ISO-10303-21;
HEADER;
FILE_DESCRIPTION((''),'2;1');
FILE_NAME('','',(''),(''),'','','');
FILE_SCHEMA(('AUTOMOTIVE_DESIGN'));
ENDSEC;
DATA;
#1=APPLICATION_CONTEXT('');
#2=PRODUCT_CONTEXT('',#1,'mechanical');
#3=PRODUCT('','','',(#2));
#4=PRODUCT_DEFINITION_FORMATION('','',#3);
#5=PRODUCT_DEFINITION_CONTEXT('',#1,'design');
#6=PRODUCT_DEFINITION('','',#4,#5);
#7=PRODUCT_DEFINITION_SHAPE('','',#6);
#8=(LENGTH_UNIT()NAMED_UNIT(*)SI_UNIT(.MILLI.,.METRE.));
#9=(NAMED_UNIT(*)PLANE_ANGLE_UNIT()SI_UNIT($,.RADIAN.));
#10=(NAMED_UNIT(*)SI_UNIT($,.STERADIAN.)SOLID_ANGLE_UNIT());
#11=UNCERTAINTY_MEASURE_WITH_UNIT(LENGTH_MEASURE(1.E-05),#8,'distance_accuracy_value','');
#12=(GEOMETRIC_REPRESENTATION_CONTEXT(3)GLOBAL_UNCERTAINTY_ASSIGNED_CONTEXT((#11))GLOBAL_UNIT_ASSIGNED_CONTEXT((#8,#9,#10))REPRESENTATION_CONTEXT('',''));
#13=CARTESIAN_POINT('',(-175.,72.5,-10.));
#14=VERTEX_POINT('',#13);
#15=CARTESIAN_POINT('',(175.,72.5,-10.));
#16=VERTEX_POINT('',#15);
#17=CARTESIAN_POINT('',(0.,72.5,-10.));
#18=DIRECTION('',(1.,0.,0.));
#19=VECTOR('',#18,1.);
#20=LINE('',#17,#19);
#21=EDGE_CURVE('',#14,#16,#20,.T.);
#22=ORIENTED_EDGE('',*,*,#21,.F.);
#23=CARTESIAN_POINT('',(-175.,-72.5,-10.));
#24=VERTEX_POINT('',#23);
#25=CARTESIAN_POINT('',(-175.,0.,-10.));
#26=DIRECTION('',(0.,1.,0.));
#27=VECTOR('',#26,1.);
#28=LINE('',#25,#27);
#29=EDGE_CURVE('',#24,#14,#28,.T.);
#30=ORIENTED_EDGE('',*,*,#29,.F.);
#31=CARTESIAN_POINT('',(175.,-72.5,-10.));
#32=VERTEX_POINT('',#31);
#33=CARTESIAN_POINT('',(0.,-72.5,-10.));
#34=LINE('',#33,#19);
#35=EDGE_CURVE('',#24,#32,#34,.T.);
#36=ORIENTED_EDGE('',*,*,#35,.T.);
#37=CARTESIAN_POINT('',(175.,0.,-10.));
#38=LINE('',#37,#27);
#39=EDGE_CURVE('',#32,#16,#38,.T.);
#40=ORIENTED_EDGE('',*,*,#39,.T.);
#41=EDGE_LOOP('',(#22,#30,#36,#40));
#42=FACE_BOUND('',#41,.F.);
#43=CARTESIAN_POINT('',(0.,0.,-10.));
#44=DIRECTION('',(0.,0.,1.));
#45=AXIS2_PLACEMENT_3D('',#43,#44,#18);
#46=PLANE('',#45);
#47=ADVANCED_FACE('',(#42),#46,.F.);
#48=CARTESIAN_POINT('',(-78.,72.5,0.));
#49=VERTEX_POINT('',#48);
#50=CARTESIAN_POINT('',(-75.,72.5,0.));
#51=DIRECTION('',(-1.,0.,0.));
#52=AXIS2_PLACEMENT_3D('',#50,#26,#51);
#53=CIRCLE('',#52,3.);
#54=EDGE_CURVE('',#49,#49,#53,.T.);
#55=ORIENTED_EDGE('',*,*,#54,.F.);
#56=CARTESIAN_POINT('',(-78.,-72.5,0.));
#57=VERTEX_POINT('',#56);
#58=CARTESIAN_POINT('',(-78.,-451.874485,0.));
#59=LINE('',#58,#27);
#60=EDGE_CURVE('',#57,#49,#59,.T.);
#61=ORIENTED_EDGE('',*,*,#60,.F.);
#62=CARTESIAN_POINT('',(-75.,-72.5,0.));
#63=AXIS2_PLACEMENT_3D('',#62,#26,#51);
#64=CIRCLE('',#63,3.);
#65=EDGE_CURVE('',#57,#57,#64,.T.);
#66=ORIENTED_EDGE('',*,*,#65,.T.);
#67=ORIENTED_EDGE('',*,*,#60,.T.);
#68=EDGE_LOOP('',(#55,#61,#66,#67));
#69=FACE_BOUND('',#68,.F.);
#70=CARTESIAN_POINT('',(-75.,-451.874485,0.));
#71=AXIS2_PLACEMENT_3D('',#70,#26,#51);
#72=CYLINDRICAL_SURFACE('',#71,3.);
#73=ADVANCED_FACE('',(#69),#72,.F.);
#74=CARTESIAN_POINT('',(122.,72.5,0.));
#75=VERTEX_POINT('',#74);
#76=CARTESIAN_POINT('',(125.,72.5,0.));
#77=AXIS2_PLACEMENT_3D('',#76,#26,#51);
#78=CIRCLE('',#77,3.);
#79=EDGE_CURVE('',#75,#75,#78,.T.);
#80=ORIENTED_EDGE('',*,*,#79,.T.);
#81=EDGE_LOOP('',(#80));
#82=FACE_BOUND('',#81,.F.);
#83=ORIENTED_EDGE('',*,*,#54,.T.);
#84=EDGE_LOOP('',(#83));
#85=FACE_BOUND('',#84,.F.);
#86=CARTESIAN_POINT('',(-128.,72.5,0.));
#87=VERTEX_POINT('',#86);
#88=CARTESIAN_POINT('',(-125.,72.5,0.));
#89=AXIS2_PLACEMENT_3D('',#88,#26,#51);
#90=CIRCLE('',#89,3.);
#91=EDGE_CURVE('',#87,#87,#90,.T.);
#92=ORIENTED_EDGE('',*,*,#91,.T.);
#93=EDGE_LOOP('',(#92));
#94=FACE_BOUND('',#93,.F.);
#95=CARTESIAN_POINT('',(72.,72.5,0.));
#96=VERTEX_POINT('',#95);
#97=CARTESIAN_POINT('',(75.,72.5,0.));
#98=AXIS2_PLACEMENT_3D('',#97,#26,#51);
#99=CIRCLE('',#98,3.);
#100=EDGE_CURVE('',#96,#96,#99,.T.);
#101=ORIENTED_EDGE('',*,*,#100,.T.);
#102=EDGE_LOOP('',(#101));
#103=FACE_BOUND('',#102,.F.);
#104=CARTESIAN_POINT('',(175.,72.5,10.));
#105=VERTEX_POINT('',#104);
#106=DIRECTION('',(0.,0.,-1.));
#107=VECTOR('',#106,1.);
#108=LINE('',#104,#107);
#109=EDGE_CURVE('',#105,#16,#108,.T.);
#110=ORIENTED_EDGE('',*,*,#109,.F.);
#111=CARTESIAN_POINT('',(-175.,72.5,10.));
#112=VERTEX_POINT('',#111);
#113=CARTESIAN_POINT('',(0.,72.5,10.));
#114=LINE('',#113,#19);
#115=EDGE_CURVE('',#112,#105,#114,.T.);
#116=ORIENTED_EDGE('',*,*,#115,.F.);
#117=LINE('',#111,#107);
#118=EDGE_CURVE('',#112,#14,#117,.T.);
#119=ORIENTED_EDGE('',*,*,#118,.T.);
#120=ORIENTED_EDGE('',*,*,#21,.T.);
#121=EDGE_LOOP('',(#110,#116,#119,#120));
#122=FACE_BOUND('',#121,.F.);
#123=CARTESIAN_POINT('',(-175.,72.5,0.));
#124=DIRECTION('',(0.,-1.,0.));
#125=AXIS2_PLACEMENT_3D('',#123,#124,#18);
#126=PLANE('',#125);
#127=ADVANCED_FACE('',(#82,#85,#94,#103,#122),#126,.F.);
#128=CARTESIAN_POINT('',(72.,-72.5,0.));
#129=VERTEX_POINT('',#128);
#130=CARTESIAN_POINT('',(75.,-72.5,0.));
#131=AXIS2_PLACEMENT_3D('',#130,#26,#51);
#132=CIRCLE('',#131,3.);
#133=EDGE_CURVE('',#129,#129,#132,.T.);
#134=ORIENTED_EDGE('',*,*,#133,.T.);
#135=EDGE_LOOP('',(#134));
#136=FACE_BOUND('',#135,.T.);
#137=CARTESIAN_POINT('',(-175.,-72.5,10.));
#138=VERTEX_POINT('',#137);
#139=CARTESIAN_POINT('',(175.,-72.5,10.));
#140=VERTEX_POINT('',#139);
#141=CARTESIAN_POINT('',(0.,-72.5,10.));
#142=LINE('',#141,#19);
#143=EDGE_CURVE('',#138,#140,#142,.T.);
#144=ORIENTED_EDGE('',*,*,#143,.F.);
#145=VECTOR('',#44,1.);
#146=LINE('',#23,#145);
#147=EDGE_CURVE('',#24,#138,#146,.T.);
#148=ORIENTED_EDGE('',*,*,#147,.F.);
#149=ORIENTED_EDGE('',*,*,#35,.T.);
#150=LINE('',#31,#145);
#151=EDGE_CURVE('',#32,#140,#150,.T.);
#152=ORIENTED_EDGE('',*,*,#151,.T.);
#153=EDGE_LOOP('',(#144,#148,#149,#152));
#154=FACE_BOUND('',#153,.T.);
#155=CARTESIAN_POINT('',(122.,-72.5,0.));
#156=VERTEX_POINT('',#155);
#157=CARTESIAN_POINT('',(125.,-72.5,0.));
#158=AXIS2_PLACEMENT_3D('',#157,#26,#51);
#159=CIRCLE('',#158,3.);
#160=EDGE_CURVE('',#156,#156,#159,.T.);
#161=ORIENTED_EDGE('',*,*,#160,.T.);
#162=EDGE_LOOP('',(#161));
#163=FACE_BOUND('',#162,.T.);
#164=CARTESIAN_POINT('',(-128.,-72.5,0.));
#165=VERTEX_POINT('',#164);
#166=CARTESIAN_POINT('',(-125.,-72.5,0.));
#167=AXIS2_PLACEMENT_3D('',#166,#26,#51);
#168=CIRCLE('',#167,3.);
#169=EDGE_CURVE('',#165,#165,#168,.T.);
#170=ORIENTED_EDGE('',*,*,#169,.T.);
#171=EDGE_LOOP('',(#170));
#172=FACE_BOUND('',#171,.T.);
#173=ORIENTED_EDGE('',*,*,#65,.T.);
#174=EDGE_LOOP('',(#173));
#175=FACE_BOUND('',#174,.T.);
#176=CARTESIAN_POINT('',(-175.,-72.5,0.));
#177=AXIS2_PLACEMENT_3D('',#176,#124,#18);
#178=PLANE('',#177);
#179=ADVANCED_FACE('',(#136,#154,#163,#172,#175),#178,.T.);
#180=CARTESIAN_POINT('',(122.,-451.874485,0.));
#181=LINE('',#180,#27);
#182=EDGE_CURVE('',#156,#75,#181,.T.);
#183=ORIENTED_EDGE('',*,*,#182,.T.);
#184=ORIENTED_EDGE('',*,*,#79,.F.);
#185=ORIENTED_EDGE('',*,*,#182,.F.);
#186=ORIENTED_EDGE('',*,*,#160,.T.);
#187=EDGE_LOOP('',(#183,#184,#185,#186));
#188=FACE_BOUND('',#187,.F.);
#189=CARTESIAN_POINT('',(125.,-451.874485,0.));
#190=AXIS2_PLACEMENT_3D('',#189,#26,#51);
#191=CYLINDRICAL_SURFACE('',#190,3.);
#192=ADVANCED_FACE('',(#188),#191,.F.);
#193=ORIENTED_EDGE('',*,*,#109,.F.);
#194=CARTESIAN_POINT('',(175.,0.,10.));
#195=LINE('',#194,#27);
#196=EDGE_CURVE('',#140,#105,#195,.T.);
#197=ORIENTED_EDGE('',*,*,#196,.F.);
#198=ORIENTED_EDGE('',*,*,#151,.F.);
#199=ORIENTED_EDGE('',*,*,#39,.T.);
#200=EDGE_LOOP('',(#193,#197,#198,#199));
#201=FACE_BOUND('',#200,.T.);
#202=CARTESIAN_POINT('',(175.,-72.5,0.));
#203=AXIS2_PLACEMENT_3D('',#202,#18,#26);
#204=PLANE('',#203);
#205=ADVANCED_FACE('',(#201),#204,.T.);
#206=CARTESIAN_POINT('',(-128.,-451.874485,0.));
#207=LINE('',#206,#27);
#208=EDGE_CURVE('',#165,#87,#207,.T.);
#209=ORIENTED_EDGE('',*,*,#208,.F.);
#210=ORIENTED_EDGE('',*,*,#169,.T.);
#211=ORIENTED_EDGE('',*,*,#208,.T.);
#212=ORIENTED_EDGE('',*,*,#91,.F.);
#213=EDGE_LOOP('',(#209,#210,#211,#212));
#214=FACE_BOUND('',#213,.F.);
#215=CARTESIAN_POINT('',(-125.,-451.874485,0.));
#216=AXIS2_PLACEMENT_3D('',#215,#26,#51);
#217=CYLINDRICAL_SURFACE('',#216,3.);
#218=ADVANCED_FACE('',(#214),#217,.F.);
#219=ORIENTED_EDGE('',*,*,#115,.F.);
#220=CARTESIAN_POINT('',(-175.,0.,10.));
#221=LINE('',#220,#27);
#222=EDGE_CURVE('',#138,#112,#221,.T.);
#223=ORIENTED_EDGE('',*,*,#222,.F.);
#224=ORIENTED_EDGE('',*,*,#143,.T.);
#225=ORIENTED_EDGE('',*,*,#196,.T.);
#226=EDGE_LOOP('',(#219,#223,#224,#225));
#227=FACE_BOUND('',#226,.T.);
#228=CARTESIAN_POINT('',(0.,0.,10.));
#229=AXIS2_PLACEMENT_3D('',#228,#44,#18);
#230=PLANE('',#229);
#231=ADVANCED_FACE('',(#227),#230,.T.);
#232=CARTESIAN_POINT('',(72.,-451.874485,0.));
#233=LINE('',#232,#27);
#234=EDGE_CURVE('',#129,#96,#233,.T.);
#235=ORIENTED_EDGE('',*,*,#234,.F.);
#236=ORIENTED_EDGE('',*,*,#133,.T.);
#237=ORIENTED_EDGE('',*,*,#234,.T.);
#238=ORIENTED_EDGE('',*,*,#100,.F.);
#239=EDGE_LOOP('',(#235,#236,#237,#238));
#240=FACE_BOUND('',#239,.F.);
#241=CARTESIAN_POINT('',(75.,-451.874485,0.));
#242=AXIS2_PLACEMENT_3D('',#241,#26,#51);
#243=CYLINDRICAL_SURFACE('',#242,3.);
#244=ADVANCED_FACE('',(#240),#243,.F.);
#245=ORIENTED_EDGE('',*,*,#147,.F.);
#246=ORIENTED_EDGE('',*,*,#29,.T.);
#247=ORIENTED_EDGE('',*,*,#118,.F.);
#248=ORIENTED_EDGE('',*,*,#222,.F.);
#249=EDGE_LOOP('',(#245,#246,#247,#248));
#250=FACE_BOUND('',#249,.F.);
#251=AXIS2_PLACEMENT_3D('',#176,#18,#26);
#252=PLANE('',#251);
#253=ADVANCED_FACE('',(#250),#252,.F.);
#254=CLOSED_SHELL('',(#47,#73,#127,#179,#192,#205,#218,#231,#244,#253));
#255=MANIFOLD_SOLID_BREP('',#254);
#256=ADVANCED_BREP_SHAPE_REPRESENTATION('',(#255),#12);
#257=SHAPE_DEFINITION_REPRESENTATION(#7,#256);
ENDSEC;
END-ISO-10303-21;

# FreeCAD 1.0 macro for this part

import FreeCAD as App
import Part
import Sketcher
from FreeCAD import Vector

doc = App.newDocument("Part")
body = doc.addObject("PartDesign::Body", "Body")

sketch1 = body.newObject("Sketcher::SketchObject", "Sketch")
sketch1.AttachmentSupport = (doc.getObject("XY_Plane"), [""])
sketch1.MapMode = "FlatFace"
sketch1.addGeometry([
    Part.LineSegment(Vector(-175, 72, 0), Vector(-175, -72, 0)),
    Part.LineSegment(Vector(-175, -72, 0), Vector(175, -72, 0)),
    Part.LineSegment(Vector(175, -72, 0), Vector(175, 72, 0)),
    Part.LineSegment(Vector(175, 72, 0), Vector(-175, 72, 0)),
], False)
sketch1.addConstraint([
    Sketcher.Constraint("Coincident", 0, 2, 1, 1),
    Sketcher.Constraint("Coincident", 1, 2, 2, 1),
    Sketcher.Constraint("Coincident", 2, 2, 3, 1),
    Sketcher.Constraint("Coincident", 3, 2, 0, 1),
    Sketcher.Constraint("Vertical", 0),
    Sketcher.Constraint("Horizontal", 1),
    Sketcher.Constraint("Vertical", 2),
    Sketcher.Constraint("Horizontal", 3),
    Sketcher.Constraint("Symmetric", 0, 2, 2, 2, -1, 1),
    Sketcher.Constraint("DistanceX", 1, 1, 1, 2, 350.0),
    Sketcher.Constraint("DistanceY", 0, 2, 0, 1, 145.0),
])
pad1 = body.newObject("PartDesign::Pad", "Pad")
pad1.Profile = sketch1
pad1.Length = 20
pad1.Midplane = True

sketch2 = body.newObject("Sketcher::SketchObject", "Sketch001")
sketch2.AttachmentSupport = (doc.getObject("XZ_Plane"), [""])
sketch2.MapMode = "FlatFace"
sketch2.AttachmentOffset = App.Placement(Vector(0, 0, 72.5), App.Rotation())
sketch2.addGeometry([
    Part.Circle(Vector(-125, 0, 0), Vector(0, 0, 1), 3),
    Part.Circle(Vector(-75, 0, 0), Vector(0, 0, 1), 3),
    Part.Circle(Vector(75, 0, 0), Vector(0, 0, 1), 3),
    Part.Circle(Vector(125, 0, 0), Vector(0, 0, 1), 3),
], False)
sketch2.addConstraint([
    Sketcher.Constraint("Equal", 0, 1),
    Sketcher.Constraint("Equal", 1, 2),
    Sketcher.Constraint("Equal", 2, 3),
    Sketcher.Constraint("Symmetric", 1, 3, 2, 3, -1, 1),
    Sketcher.Constraint("Symmetric", 0, 3, 3, 3, -1, 1),
    Sketcher.Constraint("PointOnObject", 0, 3, -1),
    Sketcher.Constraint("PointOnObject", 1, 3, -1),
    Sketcher.Constraint("Diameter", 0, 6.0),
    Sketcher.Constraint("DistanceX", 0, 3, -1, 1, 125.0),
    Sketcher.Constraint("DistanceX", 1, 3, -1, 1, 75.0),
])
doc.recompute()
hole = body.newObject("PartDesign::Hole", "Hole")
hole.Profile = sketch2
hole.ThreadType = "None"
hole.Diameter = 6
hole.DepthType = "ThroughAll"

doc.recompute()
